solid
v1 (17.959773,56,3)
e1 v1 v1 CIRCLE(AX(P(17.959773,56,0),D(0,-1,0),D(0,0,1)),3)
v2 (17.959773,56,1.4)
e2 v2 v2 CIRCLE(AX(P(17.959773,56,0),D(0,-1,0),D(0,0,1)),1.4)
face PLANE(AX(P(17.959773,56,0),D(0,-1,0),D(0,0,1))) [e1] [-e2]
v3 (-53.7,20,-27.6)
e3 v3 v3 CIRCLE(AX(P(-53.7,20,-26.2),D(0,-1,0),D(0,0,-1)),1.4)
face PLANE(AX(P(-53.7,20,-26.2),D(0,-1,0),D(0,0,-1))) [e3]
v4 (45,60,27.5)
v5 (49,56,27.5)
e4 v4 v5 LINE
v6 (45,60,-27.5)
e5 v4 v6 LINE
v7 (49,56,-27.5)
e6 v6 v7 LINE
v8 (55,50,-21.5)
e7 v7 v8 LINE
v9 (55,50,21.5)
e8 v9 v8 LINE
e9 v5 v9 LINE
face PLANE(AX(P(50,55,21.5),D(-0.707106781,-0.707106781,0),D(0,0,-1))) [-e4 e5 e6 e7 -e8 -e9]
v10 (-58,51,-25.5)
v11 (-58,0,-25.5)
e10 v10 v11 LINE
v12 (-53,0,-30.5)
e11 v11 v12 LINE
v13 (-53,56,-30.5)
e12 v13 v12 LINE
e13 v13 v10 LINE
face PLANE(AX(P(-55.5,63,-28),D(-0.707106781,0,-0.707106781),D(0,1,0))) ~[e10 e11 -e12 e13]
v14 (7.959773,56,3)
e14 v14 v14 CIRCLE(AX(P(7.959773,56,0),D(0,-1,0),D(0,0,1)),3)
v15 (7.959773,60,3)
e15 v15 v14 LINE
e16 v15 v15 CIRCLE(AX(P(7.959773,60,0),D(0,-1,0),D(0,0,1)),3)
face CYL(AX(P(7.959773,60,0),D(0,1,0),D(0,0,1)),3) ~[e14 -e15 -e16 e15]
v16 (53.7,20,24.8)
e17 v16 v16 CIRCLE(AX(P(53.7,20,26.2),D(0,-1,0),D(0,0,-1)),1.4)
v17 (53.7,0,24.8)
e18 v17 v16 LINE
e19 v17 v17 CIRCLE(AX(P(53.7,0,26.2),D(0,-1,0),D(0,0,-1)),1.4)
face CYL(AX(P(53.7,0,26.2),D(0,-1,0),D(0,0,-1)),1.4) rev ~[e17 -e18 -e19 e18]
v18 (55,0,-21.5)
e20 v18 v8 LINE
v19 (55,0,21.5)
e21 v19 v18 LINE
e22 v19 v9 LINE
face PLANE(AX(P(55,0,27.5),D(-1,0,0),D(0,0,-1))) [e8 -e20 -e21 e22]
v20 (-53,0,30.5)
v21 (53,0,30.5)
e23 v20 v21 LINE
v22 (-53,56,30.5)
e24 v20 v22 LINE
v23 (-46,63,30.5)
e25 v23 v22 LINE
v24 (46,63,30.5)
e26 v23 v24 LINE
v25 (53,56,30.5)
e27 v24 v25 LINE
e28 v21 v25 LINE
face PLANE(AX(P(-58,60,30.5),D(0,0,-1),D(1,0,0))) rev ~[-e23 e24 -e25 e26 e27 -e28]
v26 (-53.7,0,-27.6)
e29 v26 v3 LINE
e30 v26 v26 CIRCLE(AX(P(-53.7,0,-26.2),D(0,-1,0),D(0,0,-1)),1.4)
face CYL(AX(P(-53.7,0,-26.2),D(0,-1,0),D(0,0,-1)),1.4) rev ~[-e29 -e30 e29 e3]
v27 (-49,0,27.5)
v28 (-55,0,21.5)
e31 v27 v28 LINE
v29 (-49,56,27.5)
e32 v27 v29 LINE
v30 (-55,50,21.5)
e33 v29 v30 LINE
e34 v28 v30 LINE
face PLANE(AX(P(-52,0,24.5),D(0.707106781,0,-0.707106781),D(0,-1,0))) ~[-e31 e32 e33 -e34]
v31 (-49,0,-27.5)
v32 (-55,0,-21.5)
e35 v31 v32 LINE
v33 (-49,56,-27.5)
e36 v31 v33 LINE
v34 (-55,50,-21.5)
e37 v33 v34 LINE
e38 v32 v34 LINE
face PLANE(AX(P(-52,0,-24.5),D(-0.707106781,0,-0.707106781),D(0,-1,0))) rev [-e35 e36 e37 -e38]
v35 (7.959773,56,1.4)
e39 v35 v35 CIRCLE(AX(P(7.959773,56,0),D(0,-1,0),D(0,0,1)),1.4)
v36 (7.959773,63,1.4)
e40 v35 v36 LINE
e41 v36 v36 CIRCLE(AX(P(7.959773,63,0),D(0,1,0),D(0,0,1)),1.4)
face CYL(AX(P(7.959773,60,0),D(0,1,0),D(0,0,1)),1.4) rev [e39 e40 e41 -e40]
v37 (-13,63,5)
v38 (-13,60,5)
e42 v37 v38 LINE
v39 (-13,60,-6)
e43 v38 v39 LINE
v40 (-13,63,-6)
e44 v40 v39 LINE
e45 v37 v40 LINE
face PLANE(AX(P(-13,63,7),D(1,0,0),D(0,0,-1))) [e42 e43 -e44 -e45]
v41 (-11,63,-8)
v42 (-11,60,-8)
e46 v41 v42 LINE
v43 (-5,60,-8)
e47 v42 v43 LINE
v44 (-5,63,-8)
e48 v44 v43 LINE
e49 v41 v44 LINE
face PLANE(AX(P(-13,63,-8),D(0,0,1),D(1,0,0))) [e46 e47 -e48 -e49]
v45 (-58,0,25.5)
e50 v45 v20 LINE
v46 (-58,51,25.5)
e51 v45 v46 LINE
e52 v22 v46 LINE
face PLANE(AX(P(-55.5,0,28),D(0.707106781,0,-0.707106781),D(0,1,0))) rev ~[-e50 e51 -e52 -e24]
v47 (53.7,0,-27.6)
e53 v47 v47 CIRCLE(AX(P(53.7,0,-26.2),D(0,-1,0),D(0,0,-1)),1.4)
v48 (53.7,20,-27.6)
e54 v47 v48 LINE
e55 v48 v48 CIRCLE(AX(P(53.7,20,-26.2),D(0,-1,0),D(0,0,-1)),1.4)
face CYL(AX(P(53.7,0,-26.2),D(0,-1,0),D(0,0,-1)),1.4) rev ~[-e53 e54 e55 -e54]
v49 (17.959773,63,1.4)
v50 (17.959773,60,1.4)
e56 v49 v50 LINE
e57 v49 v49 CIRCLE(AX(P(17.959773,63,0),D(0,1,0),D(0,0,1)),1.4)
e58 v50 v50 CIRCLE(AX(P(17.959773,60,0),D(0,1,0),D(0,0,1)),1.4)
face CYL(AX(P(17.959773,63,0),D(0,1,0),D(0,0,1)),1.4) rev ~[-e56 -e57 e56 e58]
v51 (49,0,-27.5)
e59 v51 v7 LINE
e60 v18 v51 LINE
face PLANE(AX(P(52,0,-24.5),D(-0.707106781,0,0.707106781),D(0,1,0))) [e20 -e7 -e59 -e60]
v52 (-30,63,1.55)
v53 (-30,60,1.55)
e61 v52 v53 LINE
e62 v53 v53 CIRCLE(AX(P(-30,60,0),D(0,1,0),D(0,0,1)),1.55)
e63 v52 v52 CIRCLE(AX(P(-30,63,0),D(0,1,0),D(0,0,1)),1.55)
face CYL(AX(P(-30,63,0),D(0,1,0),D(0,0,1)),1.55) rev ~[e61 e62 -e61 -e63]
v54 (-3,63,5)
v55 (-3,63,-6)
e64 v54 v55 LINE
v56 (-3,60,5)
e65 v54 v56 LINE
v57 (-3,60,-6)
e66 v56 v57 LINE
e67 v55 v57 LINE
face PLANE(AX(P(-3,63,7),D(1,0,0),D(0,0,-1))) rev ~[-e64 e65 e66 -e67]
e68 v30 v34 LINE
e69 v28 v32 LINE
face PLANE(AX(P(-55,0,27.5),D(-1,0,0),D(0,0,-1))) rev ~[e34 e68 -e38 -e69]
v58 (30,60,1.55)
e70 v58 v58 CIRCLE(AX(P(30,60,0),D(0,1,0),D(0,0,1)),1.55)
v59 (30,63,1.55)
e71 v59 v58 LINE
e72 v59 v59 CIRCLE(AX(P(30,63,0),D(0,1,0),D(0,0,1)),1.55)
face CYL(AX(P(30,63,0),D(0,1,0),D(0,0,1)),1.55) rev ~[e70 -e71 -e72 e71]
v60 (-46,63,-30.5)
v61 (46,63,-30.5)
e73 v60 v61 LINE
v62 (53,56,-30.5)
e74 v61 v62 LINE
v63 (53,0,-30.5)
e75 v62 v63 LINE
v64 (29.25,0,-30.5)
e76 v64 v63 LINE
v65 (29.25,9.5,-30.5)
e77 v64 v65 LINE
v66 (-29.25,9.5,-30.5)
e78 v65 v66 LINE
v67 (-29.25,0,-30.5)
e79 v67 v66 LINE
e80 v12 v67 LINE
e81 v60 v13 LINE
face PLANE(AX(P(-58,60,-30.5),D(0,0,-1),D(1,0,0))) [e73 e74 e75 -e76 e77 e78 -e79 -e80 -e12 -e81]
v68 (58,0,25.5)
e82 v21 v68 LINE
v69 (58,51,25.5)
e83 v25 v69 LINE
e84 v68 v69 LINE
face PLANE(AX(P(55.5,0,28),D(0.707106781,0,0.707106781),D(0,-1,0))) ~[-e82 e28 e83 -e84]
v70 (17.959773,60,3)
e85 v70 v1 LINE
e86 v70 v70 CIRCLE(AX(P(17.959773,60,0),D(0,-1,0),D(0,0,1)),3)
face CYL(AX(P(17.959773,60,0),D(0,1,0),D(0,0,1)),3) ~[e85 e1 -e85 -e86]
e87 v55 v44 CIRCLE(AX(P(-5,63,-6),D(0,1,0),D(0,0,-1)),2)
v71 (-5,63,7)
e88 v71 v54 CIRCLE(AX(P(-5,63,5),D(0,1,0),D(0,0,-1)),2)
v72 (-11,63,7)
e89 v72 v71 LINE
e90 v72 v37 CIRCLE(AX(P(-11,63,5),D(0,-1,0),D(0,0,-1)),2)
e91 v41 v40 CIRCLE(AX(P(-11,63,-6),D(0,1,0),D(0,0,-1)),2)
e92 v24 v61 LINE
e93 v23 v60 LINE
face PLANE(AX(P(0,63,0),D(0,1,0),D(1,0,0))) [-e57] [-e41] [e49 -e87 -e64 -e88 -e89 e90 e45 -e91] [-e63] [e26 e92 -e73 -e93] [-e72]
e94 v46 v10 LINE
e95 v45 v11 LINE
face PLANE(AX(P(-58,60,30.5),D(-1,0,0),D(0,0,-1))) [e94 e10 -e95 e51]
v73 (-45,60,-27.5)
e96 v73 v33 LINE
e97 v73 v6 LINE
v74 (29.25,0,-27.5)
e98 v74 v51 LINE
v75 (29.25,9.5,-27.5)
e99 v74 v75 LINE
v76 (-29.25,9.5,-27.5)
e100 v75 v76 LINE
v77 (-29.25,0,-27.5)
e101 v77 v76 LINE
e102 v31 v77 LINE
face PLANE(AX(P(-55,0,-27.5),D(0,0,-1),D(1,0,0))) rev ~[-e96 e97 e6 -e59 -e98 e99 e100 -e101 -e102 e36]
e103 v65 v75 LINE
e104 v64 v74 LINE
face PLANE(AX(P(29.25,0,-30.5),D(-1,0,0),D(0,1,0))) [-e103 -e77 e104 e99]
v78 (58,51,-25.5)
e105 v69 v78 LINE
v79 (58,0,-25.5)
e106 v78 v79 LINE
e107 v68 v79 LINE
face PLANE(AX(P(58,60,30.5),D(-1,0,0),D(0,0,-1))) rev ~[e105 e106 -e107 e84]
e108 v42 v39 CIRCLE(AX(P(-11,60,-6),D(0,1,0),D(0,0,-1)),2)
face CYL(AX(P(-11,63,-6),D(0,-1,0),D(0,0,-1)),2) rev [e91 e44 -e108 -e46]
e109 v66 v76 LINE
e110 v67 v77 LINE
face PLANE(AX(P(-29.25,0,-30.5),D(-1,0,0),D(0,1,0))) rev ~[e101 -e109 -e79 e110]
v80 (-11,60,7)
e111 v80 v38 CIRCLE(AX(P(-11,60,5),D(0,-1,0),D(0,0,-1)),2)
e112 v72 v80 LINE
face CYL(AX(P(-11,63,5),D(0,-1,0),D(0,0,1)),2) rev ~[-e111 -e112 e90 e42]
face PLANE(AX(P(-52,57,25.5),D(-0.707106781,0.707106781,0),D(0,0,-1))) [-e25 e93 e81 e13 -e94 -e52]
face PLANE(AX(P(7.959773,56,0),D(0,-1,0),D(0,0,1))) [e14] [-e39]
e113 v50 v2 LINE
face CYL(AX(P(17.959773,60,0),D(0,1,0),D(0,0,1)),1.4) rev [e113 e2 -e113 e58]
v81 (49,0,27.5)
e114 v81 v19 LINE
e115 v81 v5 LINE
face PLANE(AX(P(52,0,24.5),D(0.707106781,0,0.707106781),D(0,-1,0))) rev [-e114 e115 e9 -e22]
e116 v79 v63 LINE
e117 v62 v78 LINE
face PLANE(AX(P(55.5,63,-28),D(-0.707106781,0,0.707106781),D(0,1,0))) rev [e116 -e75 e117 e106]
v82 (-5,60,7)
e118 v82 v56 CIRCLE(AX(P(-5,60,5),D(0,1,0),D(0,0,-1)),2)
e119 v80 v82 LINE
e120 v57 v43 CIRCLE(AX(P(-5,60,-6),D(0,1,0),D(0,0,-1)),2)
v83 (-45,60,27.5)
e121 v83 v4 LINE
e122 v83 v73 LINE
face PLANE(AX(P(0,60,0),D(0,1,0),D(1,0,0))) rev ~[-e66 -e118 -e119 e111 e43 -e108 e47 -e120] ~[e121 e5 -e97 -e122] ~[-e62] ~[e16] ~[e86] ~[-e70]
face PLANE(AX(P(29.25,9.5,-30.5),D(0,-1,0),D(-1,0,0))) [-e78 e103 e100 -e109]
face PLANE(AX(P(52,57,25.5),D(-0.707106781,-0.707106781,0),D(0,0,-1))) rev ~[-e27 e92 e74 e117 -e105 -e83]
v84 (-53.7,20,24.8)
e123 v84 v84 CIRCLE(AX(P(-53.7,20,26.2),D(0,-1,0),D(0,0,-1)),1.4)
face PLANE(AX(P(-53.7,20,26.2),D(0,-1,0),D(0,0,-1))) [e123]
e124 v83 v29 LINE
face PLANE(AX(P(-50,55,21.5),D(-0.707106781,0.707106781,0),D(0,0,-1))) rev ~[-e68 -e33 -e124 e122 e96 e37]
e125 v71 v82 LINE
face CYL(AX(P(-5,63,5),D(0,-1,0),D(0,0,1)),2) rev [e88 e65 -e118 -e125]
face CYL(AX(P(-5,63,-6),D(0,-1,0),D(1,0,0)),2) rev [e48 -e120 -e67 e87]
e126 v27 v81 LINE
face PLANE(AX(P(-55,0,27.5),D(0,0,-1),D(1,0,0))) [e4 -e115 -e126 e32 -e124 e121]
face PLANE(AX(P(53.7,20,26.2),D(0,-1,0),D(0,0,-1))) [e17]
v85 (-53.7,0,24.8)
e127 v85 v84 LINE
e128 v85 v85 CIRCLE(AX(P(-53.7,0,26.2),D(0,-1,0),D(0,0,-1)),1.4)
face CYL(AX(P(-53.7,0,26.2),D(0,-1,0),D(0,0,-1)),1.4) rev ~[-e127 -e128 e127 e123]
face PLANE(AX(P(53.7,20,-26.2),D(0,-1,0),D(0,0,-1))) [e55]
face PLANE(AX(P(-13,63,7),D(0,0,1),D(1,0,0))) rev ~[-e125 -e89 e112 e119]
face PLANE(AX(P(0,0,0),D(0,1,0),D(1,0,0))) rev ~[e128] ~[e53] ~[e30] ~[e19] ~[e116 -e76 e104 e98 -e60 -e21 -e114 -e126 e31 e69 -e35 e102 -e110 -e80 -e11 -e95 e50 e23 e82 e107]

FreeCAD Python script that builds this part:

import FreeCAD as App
import Part
import Sketcher
Q = App.Units.Quantity


def edges_at(feature, points):
    """Names of the edges that pass closest to the given points."""
    edges = feature.Shape.Edges
    near = lambda p: min(range(len(edges)), key=lambda i: edges[i].distToShape(Part.Vertex(*p))[0])
    return sorted({f"Edge{near(p) + 1}" for p in points})


def add_polygon(sketch, points):
    """Adds a closed chain of lines whose ends are joined by coincident constraints."""
    first, n = sketch.GeometryCount, len(points)
    for a, b in zip(points, points[1:] + points[:1]):
        sketch.addGeometry(Part.LineSegment(App.Vector(*a, 0), App.Vector(*b, 0)), False)
    for i in range(n):
        sketch.addConstraint(Sketcher.Constraint("Coincident", first + i, 2, first + (i + 1) % n, 1))

doc = App.newDocument("Part")
body = doc.addObject("PartDesign::Body", "Body")

# Sketch on XZ plane
sketch1 = body.newObject("Sketcher::SketchObject", "Sketch")
sketch1.AttachmentSupport = (doc.getObject("XZ_Plane"), [""])
sketch1.MapMode = "FlatFace"
add_polygon(sketch1, [(-58, -30), (-58, 30), (58, 30), (58, -30)])  # lines 0-3
add_polygon(sketch1, [(55, 28), (-55, 28), (-55, -28), (55, -28)])  # lines 4-7
sketch1.addConstraint([
    Sketcher.Constraint("Vertical", 0),
    Sketcher.Constraint("Horizontal", 1),
    Sketcher.Constraint("Vertical", 2),
    Sketcher.Constraint("Horizontal", 3),
    Sketcher.Constraint("Horizontal", 4),
    Sketcher.Constraint("Vertical", 5),
    Sketcher.Constraint("Horizontal", 6),
    Sketcher.Constraint("Vertical", 7),
    Sketcher.Constraint("Symmetric", 0, 2, 2, 2, -1, 1),
    Sketcher.Constraint("Symmetric", 4, 2, 6, 2, -1, 1),
    Sketcher.Constraint("DistanceX", 1, 1, 1, 2, Q("116 mm")),
    Sketcher.Constraint("DistanceX", 4, 2, 4, 1, Q("110 mm")),
    Sketcher.Constraint("DistanceY", 0, 1, 0, 2, Q("61 mm")),
    Sketcher.Constraint("DistanceY", 5, 2, 5, 1, Q("55 mm")),
])
pad1 = body.newObject("PartDesign::Pad", "Pad")
pad1.Profile = sketch1
pad1.Length = 60
pad1.Reversed = True

# Sketch on XZ plane
sketch2 = body.newObject("Sketcher::SketchObject", "Sketch001")
sketch2.AttachmentSupport = (doc.getObject("XZ_Plane"), [""])
sketch2.MapMode = "FlatFace"
sketch2.AttachmentOffset = App.Placement(App.Vector(0, 0, -60), App.Rotation())
add_polygon(sketch2, [(-58, -30), (-58, 30), (58, 30), (58, -30)])  # lines 0-3
sketch2.addConstraint([
    Sketcher.Constraint("Vertical", 0),
    Sketcher.Constraint("Horizontal", 1),
    Sketcher.Constraint("Vertical", 2),
    Sketcher.Constraint("Horizontal", 3),
    Sketcher.Constraint("Symmetric", 0, 2, 2, 2, -1, 1),
    Sketcher.Constraint("DistanceX", 1, 1, 1, 2, Q("116 mm")),
    Sketcher.Constraint("DistanceY", 0, 1, 0, 2, Q("61 mm")),
])
pad2 = body.newObject("PartDesign::Pad", "Pad001")
pad2.Profile = sketch2
pad2.Length = 3
pad2.Reversed = True
doc.recompute()

chamfer = body.newObject("PartDesign::Chamfer", "Chamfer")
chamfer.Base = (pad2, edges_at(pad2, [
    (58, 31.5, 30.5),
    (-58, 31.5, 30.5),
    (-58, 31.5, -30.5),
    (58, 31.5, -30.5),
]))
chamfer.Size = 5
doc.recompute()

chamfer2 = body.newObject("PartDesign::Chamfer", "Chamfer001")
chamfer2.Base = (chamfer, edges_at(chamfer, [
    (55, 30, 27.5),
    (55, 30, -27.5),
    (-55, 30, -27.5),
    (-55, 30, 27.5),
]))
chamfer2.Size = 6

# Sketch on XZ plane
sketch3 = body.newObject("Sketcher::SketchObject", "Sketch002")
sketch3.AttachmentSupport = (doc.getObject("XZ_Plane"), [""])
sketch3.MapMode = "FlatFace"
sketch3.AttachmentOffset = App.Placement(App.Vector(0, 0, -63), App.Rotation())
sketch3.addGeometry([
    Part.Circle(App.Vector(30, 0, 0), App.Vector(0, 0, 1), 1.6),
    Part.Circle(App.Vector(-30, 0, 0), App.Vector(0, 0, 1), 1.6),
], False)
sketch3.addConstraint([
    Sketcher.Constraint("Equal", 0, 1),
    Sketcher.Constraint("Symmetric", 0, 3, 1, 3, -1, 1),
    Sketcher.Constraint("PointOnObject", 0, 3, -1),
    Sketcher.Constraint("Diameter", 0, Q("3.1 mm")),
    Sketcher.Constraint("DistanceX", -1, 1, 0, 3, Q("30 mm")),
])
pocket1 = body.newObject("PartDesign::Pocket", "Pocket")
pocket1.Profile = sketch3
pocket1.Length = 3
pocket1.Reversed = True

# Sketch on XZ plane
sketch4 = body.newObject("Sketcher::SketchObject", "Sketch003")
sketch4.AttachmentSupport = (doc.getObject("XZ_Plane"), [""])
sketch4.MapMode = "FlatFace"
sketch4.AttachmentOffset = App.Placement(App.Vector(0, 0, -63), App.Rotation())
add_polygon(sketch4, [(-13, -8), (-13, 7), (-3, 7), (-3, -8)])  # lines 0-3
sketch4.addConstraint([
    Sketcher.Constraint("Vertical", 0),
    Sketcher.Constraint("Horizontal", 1),
    Sketcher.Constraint("Vertical", 2),
    Sketcher.Constraint("Horizontal", 3),
    Sketcher.Constraint("DistanceX", 1, 1, 1, 2, Q("10 mm")),
    Sketcher.Constraint("DistanceY", 0, 1, 0, 2, Q("15 mm")),
    Sketcher.Constraint("DistanceX", 0, 2, -1, 1, Q("13 mm")),
    Sketcher.Constraint("DistanceY", -1, 1, 0, 2, Q("7 mm")),
])
pocket2 = body.newObject("PartDesign::Pocket", "Pocket001")
pocket2.Profile = sketch4
pocket2.Length = 3
pocket2.Reversed = True

# Sketch on XZ plane
sketch5 = body.newObject("Sketcher::SketchObject", "Sketch004")
sketch5.AttachmentSupport = (doc.getObject("XZ_Plane"), [""])
sketch5.MapMode = "FlatFace"
sketch5.addGeometry([
    Part.Circle(App.Vector(53.7, -26.2, 0), App.Vector(0, 0, 1), 1.4),
    Part.Circle(App.Vector(-53.7, -26.2, 0), App.Vector(0, 0, 1), 1.4),
    Part.Circle(App.Vector(-53.7, 26.2, 0), App.Vector(0, 0, 1), 1.4),
    Part.Circle(App.Vector(53.7, 26.2, 0), App.Vector(0, 0, 1), 1.4),
], False)
sketch5.addConstraint([
    Sketcher.Constraint("Equal", 0, 1),
    Sketcher.Constraint("Equal", 1, 2),
    Sketcher.Constraint("Equal", 2, 3),
    Sketcher.Constraint("Symmetric", 0, 3, 2, 3, -1, 1),
    Sketcher.Constraint("Symmetric", 1, 3, 3, 3, -1, 1),
    Sketcher.Constraint("Symmetric", 0, 3, 1, 3, -2),
    Sketcher.Constraint("Diameter", 0, Q("2.8 mm")),
    Sketcher.Constraint("DistanceX", -1, 1, 0, 3, Q("53.7 mm")),
    Sketcher.Constraint("DistanceY", 0, 3, -1, 1, Q("26.2 mm")),
])
pocket3 = body.newObject("PartDesign::Pocket", "Pocket002")
pocket3.Profile = sketch5
pocket3.Length = 20
doc.recompute()

fillet = body.newObject("PartDesign::Fillet", "Fillet")
fillet.Base = (pocket3, edges_at(pocket3, [
    (-3, 61.5, -8),
    (-3, 61.5, 7),
    (-13, 61.5, 7),
    (-13, 61.5, -8),
]))
fillet.Radius = 2
doc.recompute()

chamfer3 = body.newObject("PartDesign::Chamfer", "Chamfer002")
chamfer3.Base = (fillet, edges_at(fillet, [(58, 63, 0), (-58, 63, 0)]))
chamfer3.Size = 12
doc.recompute()

chamfer4 = body.newObject("PartDesign::Chamfer", "Chamfer003")
chamfer4.Base = (chamfer3, edges_at(chamfer3, [(55, 60, 0), (-55, 60, 0)]))
chamfer4.Size = 10

# Sketch on XY plane
sketch6 = body.newObject("Sketcher::SketchObject", "Sketch005")
sketch6.AttachmentSupport = (doc.getObject("XY_Plane"), [""])
sketch6.MapMode = "FlatFace"
sketch6.AttachmentOffset = App.Placement(App.Vector(0, 0, -30.5), App.Rotation())
add_polygon(sketch6, [(29, 10), (29, 0), (-29, 0), (-29, 10)])  # lines 0-3
sketch6.addConstraint([
    Sketcher.Constraint("Vertical", 0),
    Sketcher.Constraint("Horizontal", 1),
    Sketcher.Constraint("Vertical", 2),
    Sketcher.Constraint("Horizontal", 3),
    Sketcher.Constraint("Symmetric", 0, 2, 1, 2, -1, 1),
    Sketcher.Constraint("DistanceX", 1, 2, 1, 1, Q("58.5 mm")),
    Sketcher.Constraint("DistanceY", 0, 2, 0, 1, Q("9.5 mm")),
])
pocket4 = body.newObject("PartDesign::Pocket", "Pocket003")
pocket4.Profile = sketch6
pocket4.Length = 10
pocket4.Reversed = True

# Sketch on XZ plane
sketch7 = body.newObject("Sketcher::SketchObject", "Sketch006")
sketch7.AttachmentSupport = (doc.getObject("XZ_Plane"), [""])
sketch7.MapMode = "FlatFace"
sketch7.AttachmentOffset = App.Placement(App.Vector(0, 0, -63), App.Rotation())
sketch7.addGeometry([
    Part.Circle(App.Vector(8, 0, 0), App.Vector(0, 0, 1), 1.4),
    Part.Circle(App.Vector(18, 0, 0), App.Vector(0, 0, 1), 1.4),
], False)
sketch7.addConstraint([
    Sketcher.Constraint("Equal", 0, 1),
    Sketcher.Constraint("PointOnObject", 0, 3, -1),
    Sketcher.Constraint("PointOnObject", 1, 3, -1),
    Sketcher.Constraint("Diameter", 0, Q("2.8 mm")),
    Sketcher.Constraint("DistanceX", 0, 3, 1, 3, Q("10 mm")),
    Sketcher.Constraint("DistanceX", -1, 1, 0, 3, Q("7.959773 mm")),
])
pocket5 = body.newObject("PartDesign::Pocket", "Pocket004")
pocket5.Profile = sketch7
pocket5.Length = 10
pocket5.Reversed = True

# Sketch on XZ plane
sketch8 = body.newObject("Sketcher::SketchObject", "Sketch007")
sketch8.AttachmentSupport = (doc.getObject("XZ_Plane"), [""])
sketch8.MapMode = "FlatFace"
sketch8.AttachmentOffset = App.Placement(App.Vector(0, 0, -60), App.Rotation())
sketch8.addGeometry([
    Part.Circle(App.Vector(8, 0, 0), App.Vector(0, 0, 1), 3),
    Part.Circle(App.Vector(8, 0, 0), App.Vector(0, 0, 1), 1.4),
    Part.Circle(App.Vector(18, 0, 0), App.Vector(0, 0, 1), 3),
    Part.Circle(App.Vector(18, 0, 0), App.Vector(0, 0, 1), 1.4),
], False)
sketch8.addConstraint([
    Sketcher.Constraint("Coincident", 1, 3, 0, 3),
    Sketcher.Constraint("Coincident", 3, 3, 2, 3),
    Sketcher.Constraint("Equal", 0, 2),
    Sketcher.Constraint("Equal", 1, 3),
    Sketcher.Constraint("PointOnObject", 0, 3, -1),
    Sketcher.Constraint("PointOnObject", 2, 3, -1),
    Sketcher.Constraint("Diameter", 0, Q("6 mm")),
    Sketcher.Constraint("Diameter", 1, Q("2.8 mm")),
    Sketcher.Constraint("DistanceX", 0, 3, 2, 3, Q("10 mm")),
    Sketcher.Constraint("DistanceX", -1, 1, 0, 3, Q("7.959773 mm")),
])
pad3 = body.newObject("PartDesign::Pad", "Pad002")
pad3.Profile = sketch8
pad3.Length = 4

doc.recompute()
